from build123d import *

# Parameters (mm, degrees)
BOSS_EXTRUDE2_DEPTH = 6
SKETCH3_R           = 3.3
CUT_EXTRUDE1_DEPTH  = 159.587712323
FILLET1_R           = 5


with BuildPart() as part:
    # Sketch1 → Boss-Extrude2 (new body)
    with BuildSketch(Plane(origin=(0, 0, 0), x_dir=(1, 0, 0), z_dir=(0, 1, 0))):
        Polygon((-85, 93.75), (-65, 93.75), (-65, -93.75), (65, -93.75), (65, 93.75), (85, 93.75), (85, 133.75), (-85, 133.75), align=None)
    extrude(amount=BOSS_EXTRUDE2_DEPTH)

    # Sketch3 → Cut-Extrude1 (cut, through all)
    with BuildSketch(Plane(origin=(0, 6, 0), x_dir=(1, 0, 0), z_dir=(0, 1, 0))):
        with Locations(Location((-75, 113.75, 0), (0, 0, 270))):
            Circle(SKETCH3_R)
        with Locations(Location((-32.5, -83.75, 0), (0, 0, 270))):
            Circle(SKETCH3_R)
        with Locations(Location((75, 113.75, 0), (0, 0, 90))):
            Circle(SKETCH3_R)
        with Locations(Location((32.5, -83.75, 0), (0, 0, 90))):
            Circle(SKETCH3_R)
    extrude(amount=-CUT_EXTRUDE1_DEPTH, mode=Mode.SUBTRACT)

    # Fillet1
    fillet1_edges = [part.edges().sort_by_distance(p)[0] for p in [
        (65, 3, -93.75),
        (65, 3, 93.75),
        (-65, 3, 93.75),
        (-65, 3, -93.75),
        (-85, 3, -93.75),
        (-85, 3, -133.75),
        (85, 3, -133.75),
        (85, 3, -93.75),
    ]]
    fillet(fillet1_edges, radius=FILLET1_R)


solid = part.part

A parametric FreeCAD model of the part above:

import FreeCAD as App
import Part
import Sketcher

V = App.Vector


def edges_at(feature, points):
    """Names of the edges that pass closest to the given points."""
    edges = feature.Shape.Edges
    near = lambda p: min(range(len(edges)), key=lambda i: edges[i].distToShape(Part.Vertex(*p))[0])
    return sorted({f"Edge{near(p) + 1}" for p in points})


def add_polygon(sketch, points):
    """Adds a closed chain of lines whose ends are joined by coincident constraints."""
    first, n = sketch.GeometryCount, len(points)
    for a, b in zip(points, points[1:] + points[:1]):
        sketch.addGeometry(Part.LineSegment(App.Vector(*a, 0), App.Vector(*b, 0)), False)
    for i in range(n):
        sketch.addConstraint(Sketcher.Constraint("Coincident", first + i, 2, first + (i + 1) % n, 1))

doc = App.newDocument("Part")
body = doc.addObject("PartDesign::Body", "Body")

# Sketch on XZ plane
sketch1 = doc.addObject("Sketcher::SketchObject", "Sketch")
body.addObject(sketch1)
sketch1.AttachmentSupport = (doc.XZ_Plane, [""])
sketch1.MapMode = "FlatFace"
add_polygon(sketch1, [(-85, -94), (-65, -94), (-65, 94), (65, 94), (65, -94), (85, -94), (85, -134), (-85, -134)])  # lines 0-7
sketch1.addConstraint([
    Sketcher.Constraint("Horizontal", 0),
    Sketcher.Constraint("Vertical", 1),
    Sketcher.Constraint("Horizontal", 2),
    Sketcher.Constraint("Vertical", 3),
    Sketcher.Constraint("Horizontal", 4),
    Sketcher.Constraint("Vertical", 5),
    Sketcher.Constraint("Horizontal", 6),
    Sketcher.Constraint("Vertical", 7),
    Sketcher.Constraint("Symmetric", 0, 2, 2, 2, -1, 1),
    Sketcher.Constraint("Symmetric", 4, 2, 7, 2, -2),
    Sketcher.Constraint("DistanceX", 0, 1, 0, 2, 20.0),
    Sketcher.Constraint("DistanceX", 2, 1, 2, 2, 130.0),
    Sketcher.Constraint("DistanceY", 5, 2, 5, 1, 40.0),
    Sketcher.Constraint("DistanceY", 1, 1, 1, 2, 187.5),
])
pad1 = doc.addObject("PartDesign::Pad", "Pad")
body.addObject(pad1)
pad1.Profile = sketch1
pad1.Length = 6
pad1.Reversed = True

# Sketch on XZ plane
sketch2 = doc.addObject("Sketcher::SketchObject", "Sketch001")
body.addObject(sketch2)
sketch2.AttachmentSupport = (doc.XZ_Plane, [""])
sketch2.MapMode = "FlatFace"
sketch2.AttachmentOffset = App.Placement(V(0, 0, -6), App.Rotation())
sketch2.addGeometry([
    Part.Circle(V(-75, -113.8, 0), V(0, 0, 1), 3.3),
    Part.Circle(V(-32.5, 83.8, 0), V(0, 0, 1), 3.3),
    Part.Circle(V(75, -113.8, 0), V(0, 0, 1), 3.3),
    Part.Circle(V(32.5, 83.8, 0), V(0, 0, 1), 3.3),
], False)
sketch2.addConstraint([
    Sketcher.Constraint("Equal", 0, 1),
    Sketcher.Constraint("Equal", 1, 2),
    Sketcher.Constraint("Equal", 2, 3),
    Sketcher.Constraint("Symmetric", 0, 3, 2, 3, -2),
    Sketcher.Constraint("Symmetric", 1, 3, 3, 3, -2),
    Sketcher.Constraint("Diameter", 0, 6.6),
    Sketcher.Constraint("DistanceX", 0, 3, -1, 1, 75.0),
    Sketcher.Constraint("DistanceX", 1, 3, 3, 3, 65.0),
    Sketcher.Constraint("DistanceY", 0, 3, 1, 3, 197.5),
    Sketcher.Constraint("DistanceY", 0, 3, -1, 1, 113.75),
])
pocket1 = doc.addObject("PartDesign::Pocket", "Pocket")
body.addObject(pocket1)
pocket1.Profile = sketch2
pocket1.Type = "ThroughAll"
pocket1.Reversed = True
doc.recompute()

fillet = doc.addObject("PartDesign::Fillet", "Fillet")
body.addObject(fillet)
fillet.Base = (pocket1, edges_at(pocket1, [
    (65, 3, -93.75),
    (65, 3, 93.75),
    (-65, 3, 93.75),
    (-65, 3, -93.75),
    (-85, 3, -93.75),
    (-85, 3, -133.75),
    (85, 3, -133.75),
    (85, 3, -93.75),
]))
fillet.Radius = 5

doc.recompute()
